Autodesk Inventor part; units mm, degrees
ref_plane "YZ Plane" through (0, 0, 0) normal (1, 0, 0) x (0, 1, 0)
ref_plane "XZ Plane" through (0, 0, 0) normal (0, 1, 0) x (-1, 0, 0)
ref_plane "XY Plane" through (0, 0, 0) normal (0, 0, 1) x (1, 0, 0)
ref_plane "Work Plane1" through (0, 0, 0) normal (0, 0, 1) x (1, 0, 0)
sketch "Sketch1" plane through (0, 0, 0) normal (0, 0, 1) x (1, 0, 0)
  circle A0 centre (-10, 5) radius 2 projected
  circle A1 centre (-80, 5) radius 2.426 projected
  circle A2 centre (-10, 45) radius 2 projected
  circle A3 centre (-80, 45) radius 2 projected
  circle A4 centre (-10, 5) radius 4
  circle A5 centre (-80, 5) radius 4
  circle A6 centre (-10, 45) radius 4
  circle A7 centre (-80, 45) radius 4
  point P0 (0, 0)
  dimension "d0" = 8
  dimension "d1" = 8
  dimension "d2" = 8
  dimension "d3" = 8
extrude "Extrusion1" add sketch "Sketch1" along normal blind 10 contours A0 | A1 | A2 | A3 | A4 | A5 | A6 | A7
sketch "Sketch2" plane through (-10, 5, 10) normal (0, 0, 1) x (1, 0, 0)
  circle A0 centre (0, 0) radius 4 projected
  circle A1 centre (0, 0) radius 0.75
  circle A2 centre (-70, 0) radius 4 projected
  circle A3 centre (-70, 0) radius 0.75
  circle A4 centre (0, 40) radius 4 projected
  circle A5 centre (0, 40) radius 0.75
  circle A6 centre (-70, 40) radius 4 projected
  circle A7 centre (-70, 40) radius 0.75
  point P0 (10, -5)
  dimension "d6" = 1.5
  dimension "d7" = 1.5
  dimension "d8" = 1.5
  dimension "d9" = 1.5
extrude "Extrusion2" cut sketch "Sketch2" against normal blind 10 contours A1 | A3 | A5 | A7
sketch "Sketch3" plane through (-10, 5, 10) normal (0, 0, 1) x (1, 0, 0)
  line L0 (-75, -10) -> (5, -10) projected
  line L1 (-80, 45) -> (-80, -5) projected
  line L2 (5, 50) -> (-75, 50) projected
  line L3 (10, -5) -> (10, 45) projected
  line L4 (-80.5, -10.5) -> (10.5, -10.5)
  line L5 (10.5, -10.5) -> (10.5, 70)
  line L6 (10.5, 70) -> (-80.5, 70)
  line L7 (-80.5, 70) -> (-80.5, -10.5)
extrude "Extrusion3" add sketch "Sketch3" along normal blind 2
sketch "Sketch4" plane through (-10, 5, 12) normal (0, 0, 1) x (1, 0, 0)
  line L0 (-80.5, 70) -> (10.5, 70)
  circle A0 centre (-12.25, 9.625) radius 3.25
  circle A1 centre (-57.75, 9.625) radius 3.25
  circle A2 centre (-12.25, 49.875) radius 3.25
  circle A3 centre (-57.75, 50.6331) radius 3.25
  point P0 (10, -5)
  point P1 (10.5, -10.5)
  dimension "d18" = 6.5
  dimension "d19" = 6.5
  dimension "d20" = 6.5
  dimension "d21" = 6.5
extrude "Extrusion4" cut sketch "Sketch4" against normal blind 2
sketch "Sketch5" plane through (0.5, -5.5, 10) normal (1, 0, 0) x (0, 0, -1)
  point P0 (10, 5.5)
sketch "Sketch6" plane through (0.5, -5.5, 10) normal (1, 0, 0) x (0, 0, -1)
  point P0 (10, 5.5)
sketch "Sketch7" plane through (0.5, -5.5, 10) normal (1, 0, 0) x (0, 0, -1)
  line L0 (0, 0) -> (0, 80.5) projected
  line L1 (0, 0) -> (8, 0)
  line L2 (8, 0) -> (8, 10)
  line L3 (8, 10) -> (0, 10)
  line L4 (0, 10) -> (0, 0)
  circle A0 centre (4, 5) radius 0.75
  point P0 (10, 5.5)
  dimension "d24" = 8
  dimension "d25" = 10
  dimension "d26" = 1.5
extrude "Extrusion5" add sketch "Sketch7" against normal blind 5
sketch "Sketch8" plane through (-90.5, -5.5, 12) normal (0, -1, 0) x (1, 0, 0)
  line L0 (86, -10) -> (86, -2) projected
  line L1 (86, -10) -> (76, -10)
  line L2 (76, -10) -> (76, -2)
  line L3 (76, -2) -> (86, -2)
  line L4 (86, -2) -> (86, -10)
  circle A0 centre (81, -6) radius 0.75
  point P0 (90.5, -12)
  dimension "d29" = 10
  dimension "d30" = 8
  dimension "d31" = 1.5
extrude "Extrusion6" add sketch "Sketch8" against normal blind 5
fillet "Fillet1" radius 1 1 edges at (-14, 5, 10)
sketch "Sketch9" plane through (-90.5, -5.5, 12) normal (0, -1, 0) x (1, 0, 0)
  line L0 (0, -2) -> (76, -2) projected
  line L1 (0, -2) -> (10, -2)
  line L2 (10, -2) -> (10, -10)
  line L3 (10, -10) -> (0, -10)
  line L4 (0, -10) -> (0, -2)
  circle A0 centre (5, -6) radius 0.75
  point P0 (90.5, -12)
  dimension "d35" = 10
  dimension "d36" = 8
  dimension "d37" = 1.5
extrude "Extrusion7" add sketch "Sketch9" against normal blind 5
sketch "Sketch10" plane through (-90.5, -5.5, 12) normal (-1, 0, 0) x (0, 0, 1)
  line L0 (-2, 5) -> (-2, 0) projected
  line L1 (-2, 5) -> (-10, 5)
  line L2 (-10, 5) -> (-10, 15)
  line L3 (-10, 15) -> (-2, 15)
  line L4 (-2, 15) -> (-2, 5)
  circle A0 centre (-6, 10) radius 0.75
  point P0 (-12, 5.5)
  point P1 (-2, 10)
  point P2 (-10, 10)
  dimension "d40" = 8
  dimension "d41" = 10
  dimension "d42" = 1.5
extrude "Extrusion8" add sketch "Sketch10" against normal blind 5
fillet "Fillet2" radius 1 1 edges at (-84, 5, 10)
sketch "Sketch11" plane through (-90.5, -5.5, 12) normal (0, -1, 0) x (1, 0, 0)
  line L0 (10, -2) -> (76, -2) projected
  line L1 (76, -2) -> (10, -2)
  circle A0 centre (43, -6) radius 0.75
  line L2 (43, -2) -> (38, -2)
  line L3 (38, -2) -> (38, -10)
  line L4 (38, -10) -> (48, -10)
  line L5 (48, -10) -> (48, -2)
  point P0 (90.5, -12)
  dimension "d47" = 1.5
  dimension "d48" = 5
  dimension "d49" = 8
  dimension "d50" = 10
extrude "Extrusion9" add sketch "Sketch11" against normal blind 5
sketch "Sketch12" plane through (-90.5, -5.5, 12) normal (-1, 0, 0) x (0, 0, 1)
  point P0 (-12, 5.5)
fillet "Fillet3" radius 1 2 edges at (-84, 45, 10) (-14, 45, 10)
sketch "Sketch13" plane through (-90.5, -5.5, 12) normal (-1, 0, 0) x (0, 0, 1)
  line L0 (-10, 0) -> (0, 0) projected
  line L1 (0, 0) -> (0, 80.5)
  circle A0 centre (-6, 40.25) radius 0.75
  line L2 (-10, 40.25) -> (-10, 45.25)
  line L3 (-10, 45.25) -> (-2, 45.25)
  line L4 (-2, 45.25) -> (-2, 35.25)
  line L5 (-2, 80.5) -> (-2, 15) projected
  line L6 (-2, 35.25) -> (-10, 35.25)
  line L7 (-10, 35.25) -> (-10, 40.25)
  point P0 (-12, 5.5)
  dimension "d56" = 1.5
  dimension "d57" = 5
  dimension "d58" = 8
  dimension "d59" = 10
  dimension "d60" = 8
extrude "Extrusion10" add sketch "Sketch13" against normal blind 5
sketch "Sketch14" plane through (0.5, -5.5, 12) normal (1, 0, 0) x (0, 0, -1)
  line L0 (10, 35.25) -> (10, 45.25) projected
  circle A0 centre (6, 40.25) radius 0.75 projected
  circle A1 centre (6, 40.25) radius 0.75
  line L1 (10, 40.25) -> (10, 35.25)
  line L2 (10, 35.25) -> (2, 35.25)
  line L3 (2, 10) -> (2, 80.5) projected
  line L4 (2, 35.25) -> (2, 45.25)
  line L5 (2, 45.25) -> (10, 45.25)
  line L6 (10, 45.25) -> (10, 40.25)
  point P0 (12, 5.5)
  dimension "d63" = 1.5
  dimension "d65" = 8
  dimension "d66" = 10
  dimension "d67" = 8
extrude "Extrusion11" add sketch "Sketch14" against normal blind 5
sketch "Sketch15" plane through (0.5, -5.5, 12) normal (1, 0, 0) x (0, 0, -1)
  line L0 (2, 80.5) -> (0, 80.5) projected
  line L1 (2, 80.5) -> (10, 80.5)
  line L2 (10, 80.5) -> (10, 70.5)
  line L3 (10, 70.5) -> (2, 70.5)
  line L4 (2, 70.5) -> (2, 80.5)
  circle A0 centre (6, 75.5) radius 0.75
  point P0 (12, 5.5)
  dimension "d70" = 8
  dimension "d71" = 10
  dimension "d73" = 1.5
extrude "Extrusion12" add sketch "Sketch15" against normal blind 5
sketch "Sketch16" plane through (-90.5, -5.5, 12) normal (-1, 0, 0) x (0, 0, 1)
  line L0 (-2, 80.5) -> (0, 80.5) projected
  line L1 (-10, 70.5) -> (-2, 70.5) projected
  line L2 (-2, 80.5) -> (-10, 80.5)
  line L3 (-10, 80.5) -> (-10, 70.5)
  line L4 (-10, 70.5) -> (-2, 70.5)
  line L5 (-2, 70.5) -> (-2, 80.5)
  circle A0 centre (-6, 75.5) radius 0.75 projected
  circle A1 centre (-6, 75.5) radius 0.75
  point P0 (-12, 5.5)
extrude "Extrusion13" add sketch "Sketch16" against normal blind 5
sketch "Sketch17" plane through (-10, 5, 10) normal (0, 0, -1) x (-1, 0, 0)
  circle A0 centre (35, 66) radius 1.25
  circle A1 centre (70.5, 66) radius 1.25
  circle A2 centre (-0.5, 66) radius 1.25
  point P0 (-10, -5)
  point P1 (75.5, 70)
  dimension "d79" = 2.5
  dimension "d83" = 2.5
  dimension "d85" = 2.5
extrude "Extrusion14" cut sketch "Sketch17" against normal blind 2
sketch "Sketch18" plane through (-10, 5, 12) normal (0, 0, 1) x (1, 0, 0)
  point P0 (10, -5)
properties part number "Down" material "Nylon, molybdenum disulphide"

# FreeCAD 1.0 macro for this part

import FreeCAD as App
import Part
import Sketcher


def edges_at(feature, points):
    """Names of the edges that pass closest to the given points."""
    edges = feature.Shape.Edges
    near = lambda p: min(range(len(edges)), key=lambda i: edges[i].distToShape(Part.Vertex(*p))[0])
    return sorted({f"Edge{near(p) + 1}" for p in points})


def add_polygon(sketch, points):
    """Adds a closed chain of lines whose ends are joined by coincident constraints."""
    first, n = sketch.GeometryCount, len(points)
    for a, b in zip(points, points[1:] + points[:1]):
        sketch.addGeometry(Part.LineSegment(App.Vector(*a, 0), App.Vector(*b, 0)), False)
    for i in range(n):
        sketch.addConstraint(Sketcher.Constraint("Coincident", first + i, 2, first + (i + 1) % n, 1))

doc = App.newDocument("Part")
body = doc.addObject("PartDesign::Body", "Body")
body.AllowCompound = True

sketch1 = body.newObject("Sketcher::SketchObject", "Sketch")
sketch1.AttachmentSupport = (doc.getObject("XY_Plane"), [""])
sketch1.MapMode = "FlatFace"
sketch1.addGeometry(Part.Circle(App.Vector(-10, 5, 0), App.Vector(0, 0, 1), 4), False)
sketch1.addGeometry(Part.Circle(App.Vector(-80, 5, 0), App.Vector(0, 0, 1), 4), False)
sketch1.addGeometry(Part.Circle(App.Vector(-10, 45, 0), App.Vector(0, 0, 1), 4), False)
sketch1.addGeometry(Part.Circle(App.Vector(-80, 45, 0), App.Vector(0, 0, 1), 4), False)
sketch1.addConstraint(Sketcher.Constraint("Equal", 0, 1))
sketch1.addConstraint(Sketcher.Constraint("Equal", 1, 2))
sketch1.addConstraint(Sketcher.Constraint("Equal", 2, 3))
sketch1.addConstraint(Sketcher.Constraint("Horizontal", 0, 3, 1, 3))
sketch1.addConstraint(Sketcher.Constraint("Horizontal", 2, 3, 3, 3))
sketch1.addConstraint(Sketcher.Constraint("Vertical", 0, 3, 2, 3))
sketch1.addConstraint(Sketcher.Constraint("Vertical", 1, 3, 3, 3))
sketch1.addConstraint(Sketcher.Constraint("Diameter", 0, 8.0))
sketch1.addConstraint(Sketcher.Constraint("DistanceX", 0, 3, -1, 1, 10.0))
sketch1.addConstraint(Sketcher.Constraint("DistanceY", -1, 1, 0, 3, 5.0))
sketch1.addConstraint(Sketcher.Constraint("DistanceX", 1, 3, -1, 1, 80.0))
sketch1.addConstraint(Sketcher.Constraint("DistanceY", -1, 1, 2, 3, 45.0))
pad1 = body.newObject("PartDesign::Pad", "Pad")
pad1.Profile = sketch1
pad1.Length = 10

sketch2 = body.newObject("Sketcher::SketchObject", "Sketch001")
sketch2.AttachmentSupport = (doc.getObject("XY_Plane"), [""])
sketch2.MapMode = "FlatFace"
sketch2.AttachmentOffset = App.Placement(App.Vector(0, 0, 10), App.Rotation())
sketch2.addGeometry(Part.Circle(App.Vector(-10, 5, 0), App.Vector(0, 0, 1), 0.75), False)
sketch2.addGeometry(Part.Circle(App.Vector(-80, 5, 0), App.Vector(0, 0, 1), 0.75), False)
sketch2.addGeometry(Part.Circle(App.Vector(-10, 45, 0), App.Vector(0, 0, 1), 0.75), False)
sketch2.addGeometry(Part.Circle(App.Vector(-80, 45, 0), App.Vector(0, 0, 1), 0.75), False)
sketch2.addConstraint(Sketcher.Constraint("Equal", 0, 1))
sketch2.addConstraint(Sketcher.Constraint("Equal", 1, 2))
sketch2.addConstraint(Sketcher.Constraint("Equal", 2, 3))
sketch2.addConstraint(Sketcher.Constraint("Horizontal", 0, 3, 1, 3))
sketch2.addConstraint(Sketcher.Constraint("Horizontal", 2, 3, 3, 3))
sketch2.addConstraint(Sketcher.Constraint("Vertical", 0, 3, 2, 3))
sketch2.addConstraint(Sketcher.Constraint("Vertical", 1, 3, 3, 3))
sketch2.addConstraint(Sketcher.Constraint("Diameter", 0, 1.5))
sketch2.addConstraint(Sketcher.Constraint("DistanceX", 0, 3, -1, 1, 10.0))
sketch2.addConstraint(Sketcher.Constraint("DistanceY", -1, 1, 0, 3, 5.0))
sketch2.addConstraint(Sketcher.Constraint("DistanceX", 1, 3, -1, 1, 80.0))
sketch2.addConstraint(Sketcher.Constraint("DistanceY", -1, 1, 2, 3, 45.0))
pocket1 = body.newObject("PartDesign::Pocket", "Pocket")
pocket1.Profile = sketch2
pocket1.Length = 10

sketch3 = body.newObject("Sketcher::SketchObject", "Sketch002")
sketch3.AttachmentSupport = (doc.getObject("XY_Plane"), [""])
sketch3.MapMode = "FlatFace"
sketch3.AttachmentOffset = App.Placement(App.Vector(0, 0, 10), App.Rotation())
add_polygon(sketch3, [(-90.5, 75), (-90.5, -5.5), (0.5, -5.5), (0.5, 75)])
sketch3.addConstraint(Sketcher.Constraint("Vertical", 0))
sketch3.addConstraint(Sketcher.Constraint("Horizontal", 1))
sketch3.addConstraint(Sketcher.Constraint("Vertical", 2))
sketch3.addConstraint(Sketcher.Constraint("Horizontal", 3))
sketch3.addConstraint(Sketcher.Constraint("DistanceX", 1, 1, 1, 2, 91.0))
sketch3.addConstraint(Sketcher.Constraint("DistanceY", 0, 2, 0, 1, 80.5))
sketch3.addConstraint(Sketcher.Constraint("DistanceY", -1, 1, 2, 2, 75.0))
sketch3.addConstraint(Sketcher.Constraint("DistanceX", 0, 2, -1, 1, 90.5))
pad2 = body.newObject("PartDesign::Pad", "Pad001")
pad2.Profile = sketch3
pad2.Length = 2

sketch4 = body.newObject("Sketcher::SketchObject", "Sketch003")
sketch4.AttachmentSupport = (doc.getObject("XY_Plane"), [""])
sketch4.MapMode = "FlatFace"
sketch4.AttachmentOffset = App.Placement(App.Vector(0, 0, 12), App.Rotation())
sketch4.addGeometry(Part.Circle(App.Vector(-22.25, 14.625, 0), App.Vector(0, 0, 1), 3.25), False)
sketch4.addGeometry(Part.Circle(App.Vector(-67.75, 14.625, 0), App.Vector(0, 0, 1), 3.25), False)
sketch4.addGeometry(Part.Circle(App.Vector(-22.25, 54.875, 0), App.Vector(0, 0, 1), 3.25), False)
sketch4.addGeometry(Part.Circle(App.Vector(-67.75, 55.6331, 0), App.Vector(0, 0, 1), 3.25), False)
sketch4.addConstraint(Sketcher.Constraint("Equal", 0, 1))
sketch4.addConstraint(Sketcher.Constraint("Equal", 1, 2))
sketch4.addConstraint(Sketcher.Constraint("Equal", 2, 3))
sketch4.addConstraint(Sketcher.Constraint("Horizontal", 0, 3, 1, 3))
sketch4.addConstraint(Sketcher.Constraint("Vertical", 0, 3, 2, 3))
sketch4.addConstraint(Sketcher.Constraint("Vertical", 1, 3, 3, 3))
sketch4.addConstraint(Sketcher.Constraint("Diameter", 0, 6.5))
sketch4.addConstraint(Sketcher.Constraint("DistanceX", 1, 3, 0, 3, 45.5))
sketch4.addConstraint(Sketcher.Constraint("DistanceX", 0, 3, -1, 1, 22.25))
sketch4.addConstraint(Sketcher.Constraint("DistanceY", 0, 3, 2, 3, 40.25))
sketch4.addConstraint(Sketcher.Constraint("DistanceY", -1, 1, 0, 3, 14.625))
sketch4.addConstraint(Sketcher.Constraint("DistanceY", -1, 1, 3, 3, 55.633))
pocket2 = body.newObject("PartDesign::Pocket", "Pocket001")
pocket2.Profile = sketch4
pocket2.Length = 2

sketch5 = body.newObject("Sketcher::SketchObject", "Sketch004")
sketch5.AttachmentSupport = (doc.getObject("YZ_Plane"), [""])
sketch5.MapMode = "FlatFace"
sketch5.AttachmentOffset = App.Placement(App.Vector(0, 0, 0.5), App.Rotation())
add_polygon(sketch5, [(4.5, 10), (-5.5, 10), (-5.5, 2), (4.5, 2)])
sketch5.addGeometry(Part.Circle(App.Vector(-0.5, 6, 0), App.Vector(0, 0, 1), 0.75), False)
sketch5.addConstraint(Sketcher.Constraint("Horizontal", 0))
sketch5.addConstraint(Sketcher.Constraint("Vertical", 1))
sketch5.addConstraint(Sketcher.Constraint("Horizontal", 2))
sketch5.addConstraint(Sketcher.Constraint("Vertical", 3))
sketch5.addConstraint(Sketcher.Constraint("Diameter", 4, 1.5))
sketch5.addConstraint(Sketcher.Constraint("DistanceX", 0, 2, 0, 1, 10.0))
sketch5.addConstraint(Sketcher.Constraint("DistanceY", 1, 2, 1, 1, 8.0))
sketch5.addConstraint(Sketcher.Constraint("DistanceY", -1, 1, 0, 2, 10.0))
sketch5.addConstraint(Sketcher.Constraint("DistanceY", -1, 1, 4, 3, 6.0))
sketch5.addConstraint(Sketcher.Constraint("DistanceX", 0, 2, 4, 3, 5.0))
sketch5.addConstraint(Sketcher.Constraint("DistanceX", 4, 3, -1, 1, 0.5))
pad3 = body.newObject("PartDesign::Pad", "Pad002")
pad3.Profile = sketch5
pad3.Length = 5
pad3.Reversed = True

sketch6 = body.newObject("Sketcher::SketchObject", "Sketch005")
sketch6.AttachmentSupport = (doc.getObject("XZ_Plane"), [""])
sketch6.MapMode = "FlatFace"
sketch6.AttachmentOffset = App.Placement(App.Vector(0, 0, 5.5), App.Rotation())
add_polygon(sketch6, [(-14.5, 2), (-4.5, 2), (-4.5, 10), (-14.5, 10)])
sketch6.addGeometry(Part.Circle(App.Vector(-9.5, 6, 0), App.Vector(0, 0, 1), 0.75), False)
sketch6.addConstraint(Sketcher.Constraint("Horizontal", 0))
sketch6.addConstraint(Sketcher.Constraint("Vertical", 1))
sketch6.addConstraint(Sketcher.Constraint("Horizontal", 2))
sketch6.addConstraint(Sketcher.Constraint("Vertical", 3))
sketch6.addConstraint(Sketcher.Constraint("Diameter", 4, 1.5))
sketch6.addConstraint(Sketcher.Constraint("DistanceX", 0, 1, 0, 2, 10.0))
sketch6.addConstraint(Sketcher.Constraint("DistanceY", 1, 1, 1, 2, 8.0))
sketch6.addConstraint(Sketcher.Constraint("DistanceY", -1, 1, 1, 2, 10.0))
sketch6.addConstraint(Sketcher.Constraint("DistanceY", -1, 1, 4, 3, 6.0))
sketch6.addConstraint(Sketcher.Constraint("DistanceX", 4, 3, 0, 2, 5.0))
sketch6.addConstraint(Sketcher.Constraint("DistanceX", 4, 3, -1, 1, 9.5))
pad4 = body.newObject("PartDesign::Pad", "Pad003")
pad4.Profile = sketch6
pad4.Length = 5
pad4.Reversed = True
doc.recompute()

fillet = body.newObject("PartDesign::Fillet", "Fillet")
fillet.Base = (pad4, edges_at(pad4, [(-14, 5, 10)]))
fillet.Radius = 1

sketch7 = body.newObject("Sketcher::SketchObject", "Sketch006")
sketch7.AttachmentSupport = (doc.getObject("XZ_Plane"), [""])
sketch7.MapMode = "FlatFace"
sketch7.AttachmentOffset = App.Placement(App.Vector(0, 0, 5.5), App.Rotation())
add_polygon(sketch7, [(-80.5, 10), (-90.5, 10), (-90.5, 2), (-80.5, 2)])
sketch7.addGeometry(Part.Circle(App.Vector(-85.5, 6, 0), App.Vector(0, 0, 1), 0.75), False)
sketch7.addConstraint(Sketcher.Constraint("Horizontal", 0))
sketch7.addConstraint(Sketcher.Constraint("Vertical", 1))
sketch7.addConstraint(Sketcher.Constraint("Horizontal", 2))
sketch7.addConstraint(Sketcher.Constraint("Vertical", 3))
sketch7.addConstraint(Sketcher.Constraint("Diameter", 4, 1.5))
sketch7.addConstraint(Sketcher.Constraint("DistanceX", 0, 2, 0, 1, 10.0))
sketch7.addConstraint(Sketcher.Constraint("DistanceY", 1, 2, 1, 1, 8.0))
sketch7.addConstraint(Sketcher.Constraint("DistanceY", -1, 1, 0, 2, 10.0))
sketch7.addConstraint(Sketcher.Constraint("DistanceY", -1, 1, 4, 3, 6.0))
sketch7.addConstraint(Sketcher.Constraint("DistanceX", 0, 2, 4, 3, 5.0))
sketch7.addConstraint(Sketcher.Constraint("DistanceX", 4, 3, -1, 1, 85.5))
pad5 = body.newObject("PartDesign::Pad", "Pad004")
pad5.Profile = sketch7
pad5.Length = 5
pad5.Reversed = True

sketch8 = body.newObject("Sketcher::SketchObject", "Sketch007")
sketch8.AttachmentSupport = (doc.getObject("YZ_Plane"), [""])
sketch8.MapMode = "FlatFace"
sketch8.AttachmentOffset = App.Placement(App.Vector(0, 0, -90.5), App.Rotation())
add_polygon(sketch8, [(-0.5, 2), (-0.5, 10), (9.5, 10), (9.5, 2)])
sketch8.addGeometry(Part.Circle(App.Vector(4.5, 6, 0), App.Vector(0, 0, 1), 0.75), False)
sketch8.addConstraint(Sketcher.Constraint("Vertical", 0))
sketch8.addConstraint(Sketcher.Constraint("Horizontal", 1))
sketch8.addConstraint(Sketcher.Constraint("Vertical", 2))
sketch8.addConstraint(Sketcher.Constraint("Horizontal", 3))
sketch8.addConstraint(Sketcher.Constraint("Diameter", 4, 1.5))
sketch8.addConstraint(Sketcher.Constraint("DistanceX", 1, 1, 1, 2, 10.0))
sketch8.addConstraint(Sketcher.Constraint("DistanceY", 0, 1, 0, 2, 8.0))
sketch8.addConstraint(Sketcher.Constraint("DistanceY", -1, 1, 0, 2, 10.0))
sketch8.addConstraint(Sketcher.Constraint("DistanceY", -1, 1, 4, 3, 6.0))
sketch8.addConstraint(Sketcher.Constraint("DistanceX", 0, 2, 4, 3, 5.0))
sketch8.addConstraint(Sketcher.Constraint("DistanceX", -1, 1, 4, 3, 4.5))
pad6 = body.newObject("PartDesign::Pad", "Pad005")
pad6.Profile = sketch8
pad6.Length = 5
doc.recompute()

fillet2 = body.newObject("PartDesign::Fillet", "Fillet001")
fillet2.Base = (pad6, edges_at(pad6, [(-84, 5, 10)]))
fillet2.Radius = 1

sketch9 = body.newObject("Sketcher::SketchObject", "Sketch008")
sketch9.AttachmentSupport = (doc.getObject("XZ_Plane"), [""])
sketch9.MapMode = "FlatFace"
sketch9.AttachmentOffset = App.Placement(App.Vector(0, 0, 5.5), App.Rotation())
add_polygon(sketch9, [(-42.5, 10), (-52.5, 10), (-52.5, 2), (-42.5, 2)])
sketch9.addGeometry(Part.Circle(App.Vector(-47.5, 6, 0), App.Vector(0, 0, 1), 0.75), False)
sketch9.addConstraint(Sketcher.Constraint("Horizontal", 0))
sketch9.addConstraint(Sketcher.Constraint("Vertical", 1))
sketch9.addConstraint(Sketcher.Constraint("Horizontal", 2))
sketch9.addConstraint(Sketcher.Constraint("Vertical", 3))
sketch9.addConstraint(Sketcher.Constraint("Diameter", 4, 1.5))
sketch9.addConstraint(Sketcher.Constraint("DistanceX", 0, 2, 0, 1, 10.0))
sketch9.addConstraint(Sketcher.Constraint("DistanceY", 1, 2, 1, 1, 8.0))
sketch9.addConstraint(Sketcher.Constraint("DistanceY", -1, 1, 0, 2, 10.0))
sketch9.addConstraint(Sketcher.Constraint("DistanceX", 0, 2, 4, 3, 5.0))
sketch9.addConstraint(Sketcher.Constraint("DistanceY", -1, 1, 4, 3, 6.0))
sketch9.addConstraint(Sketcher.Constraint("DistanceX", 4, 3, -1, 1, 47.5))
pad7 = body.newObject("PartDesign::Pad", "Pad006")
pad7.Profile = sketch9
pad7.Length = 5
pad7.Reversed = True
doc.recompute()

fillet3 = body.newObject("PartDesign::Fillet", "Fillet002")
fillet3.Base = (pad7, edges_at(pad7, [(-84, 45, 10), (-14, 45, 10)]))
fillet3.Radius = 1

sketch10 = body.newObject("Sketcher::SketchObject", "Sketch009")
sketch10.AttachmentSupport = (doc.getObject("YZ_Plane"), [""])
sketch10.MapMode = "FlatFace"
sketch10.AttachmentOffset = App.Placement(App.Vector(0, 0, -90.5), App.Rotation())
add_polygon(sketch10, [(39.75, 2), (29.75, 2), (29.75, 10), (39.75, 10)])
sketch10.addGeometry(Part.Circle(App.Vector(34.75, 6, 0), App.Vector(0, 0, 1), 0.75), False)
sketch10.addConstraint(Sketcher.Constraint("Horizontal", 0))
sketch10.addConstraint(Sketcher.Constraint("Vertical", 1))
sketch10.addConstraint(Sketcher.Constraint("Horizontal", 2))
sketch10.addConstraint(Sketcher.Constraint("Vertical", 3))
sketch10.addConstraint(Sketcher.Constraint("Diameter", 4, 1.5))
sketch10.addConstraint(Sketcher.Constraint("DistanceX", 0, 2, 0, 1, 10.0))
sketch10.addConstraint(Sketcher.Constraint("DistanceY", 1, 1, 1, 2, 8.0))
sketch10.addConstraint(Sketcher.Constraint("DistanceY", -1, 1, 1, 2, 10.0))
sketch10.addConstraint(Sketcher.Constraint("DistanceX", 0, 2, 4, 3, 5.0))
sketch10.addConstraint(Sketcher.Constraint("DistanceY", -1, 1, 4, 3, 6.0))
sketch10.addConstraint(Sketcher.Constraint("DistanceX", -1, 1, 4, 3, 34.75))
pad8 = body.newObject("PartDesign::Pad", "Pad007")
pad8.Profile = sketch10
pad8.Length = 5

sketch11 = body.newObject("Sketcher::SketchObject", "Sketch010")
sketch11.AttachmentSupport = (doc.getObject("YZ_Plane"), [""])
sketch11.MapMode = "FlatFace"
sketch11.AttachmentOffset = App.Placement(App.Vector(0, 0, 0.5), App.Rotation())
add_polygon(sketch11, [(29.75, 10), (29.75, 2), (39.75, 2), (39.75, 10)])
sketch11.addGeometry(Part.Circle(App.Vector(34.75, 6, 0), App.Vector(0, 0, 1), 0.75), False)
sketch11.addConstraint(Sketcher.Constraint("Vertical", 0))
sketch11.addConstraint(Sketcher.Constraint("Horizontal", 1))
sketch11.addConstraint(Sketcher.Constraint("Vertical", 2))
sketch11.addConstraint(Sketcher.Constraint("Horizontal", 3))
sketch11.addConstraint(Sketcher.Constraint("Diameter", 4, 1.5))
sketch11.addConstraint(Sketcher.Constraint("DistanceX", 1, 1, 1, 2, 10.0))
sketch11.addConstraint(Sketcher.Constraint("DistanceY", 0, 2, 0, 1, 8.0))
sketch11.addConstraint(Sketcher.Constraint("DistanceY", -1, 1, 2, 2, 10.0))
sketch11.addConstraint(Sketcher.Constraint("DistanceY", -1, 1, 4, 3, 6.0))
sketch11.addConstraint(Sketcher.Constraint("DistanceX", 0, 2, 4, 3, 5.0))
sketch11.addConstraint(Sketcher.Constraint("DistanceX", -1, 1, 4, 3, 34.75))
pad9 = body.newObject("PartDesign::Pad", "Pad008")
pad9.Profile = sketch11
pad9.Length = 5
pad9.Reversed = True

sketch12 = body.newObject("Sketcher::SketchObject", "Sketch011")
sketch12.AttachmentSupport = (doc.getObject("YZ_Plane"), [""])
sketch12.MapMode = "FlatFace"
sketch12.AttachmentOffset = App.Placement(App.Vector(0, 0, 0.5), App.Rotation())
add_polygon(sketch12, [(75, 2), (75, 10), (65, 10), (65, 2)])
sketch12.addGeometry(Part.Circle(App.Vector(70, 6, 0), App.Vector(0, 0, 1), 0.75), False)
sketch12.addConstraint(Sketcher.Constraint("Vertical", 0))
sketch12.addConstraint(Sketcher.Constraint("Horizontal", 1))
sketch12.addConstraint(Sketcher.Constraint("Vertical", 2))
sketch12.addConstraint(Sketcher.Constraint("Horizontal", 3))
sketch12.addConstraint(Sketcher.Constraint("Diameter", 4, 1.5))
sketch12.addConstraint(Sketcher.Constraint("DistanceX", 1, 2, 1, 1, 10.0))
sketch12.addConstraint(Sketcher.Constraint("DistanceY", 0, 1, 0, 2, 8.0))
sketch12.addConstraint(Sketcher.Constraint("DistanceY", -1, 1, 0, 2, 10.0))
sketch12.addConstraint(Sketcher.Constraint("DistanceX", -1, 1, 4, 3, 70.0))
sketch12.addConstraint(Sketcher.Constraint("DistanceY", -1, 1, 4, 3, 6.0))
sketch12.addConstraint(Sketcher.Constraint("DistanceX", -1, 1, 0, 2, 75.0))
pad10 = body.newObject("PartDesign::Pad", "Pad009")
pad10.Profile = sketch12
pad10.Length = 5
pad10.Reversed = True

sketch13 = body.newObject("Sketcher::SketchObject", "Sketch012")
sketch13.AttachmentSupport = (doc.getObject("YZ_Plane"), [""])
sketch13.MapMode = "FlatFace"
sketch13.AttachmentOffset = App.Placement(App.Vector(0, 0, -90.5), App.Rotation())
add_polygon(sketch13, [(75, 2), (65, 2), (65, 10), (75, 10)])
sketch13.addGeometry(Part.Circle(App.Vector(70, 6, 0), App.Vector(0, 0, 1), 0.75), False)
sketch13.addConstraint(Sketcher.Constraint("Horizontal", 0))
sketch13.addConstraint(Sketcher.Constraint("Vertical", 1))
sketch13.addConstraint(Sketcher.Constraint("Horizontal", 2))
sketch13.addConstraint(Sketcher.Constraint("Vertical", 3))
sketch13.addConstraint(Sketcher.Constraint("Diameter", 4, 1.5))
sketch13.addConstraint(Sketcher.Constraint("DistanceX", 0, 2, 0, 1, 10.0))
sketch13.addConstraint(Sketcher.Constraint("DistanceY", 1, 1, 1, 2, 8.0))
sketch13.addConstraint(Sketcher.Constraint("DistanceX", -1, 1, 4, 3, 70.0))
sketch13.addConstraint(Sketcher.Constraint("DistanceY", -1, 1, 4, 3, 6.0))
sketch13.addConstraint(Sketcher.Constraint("DistanceX", -1, 1, 0, 2, 65.0))
sketch13.addConstraint(Sketcher.Constraint("DistanceY", -1, 1, 0, 2, 2.0))
pad11 = body.newObject("PartDesign::Pad", "Pad010")
pad11.Profile = sketch13
pad11.Length = 5

sketch14 = body.newObject("Sketcher::SketchObject", "Sketch013")
sketch14.AttachmentSupport = (doc.getObject("XY_Plane"), [""])
sketch14.MapMode = "FlatFace"
sketch14.AttachmentOffset = App.Placement(App.Vector(0, 0, 10), App.Rotation())
sketch14.addGeometry(Part.Circle(App.Vector(-45, 71, 0), App.Vector(0, 0, 1), 1.25), False)
sketch14.addGeometry(Part.Circle(App.Vector(-80.5, 71, 0), App.Vector(0, 0, 1), 1.25), False)
sketch14.addGeometry(Part.Circle(App.Vector(-9.5, 71, 0), App.Vector(0, 0, 1), 1.25), False)
sketch14.addConstraint(Sketcher.Constraint("Equal", 0, 1))
sketch14.addConstraint(Sketcher.Constraint("Equal", 1, 2))
sketch14.addConstraint(Sketcher.Constraint("Horizontal", 0, 3, 1, 3))
sketch14.addConstraint(Sketcher.Constraint("Horizontal", 1, 3, 2, 3))
sketch14.addConstraint(Sketcher.Constraint("Diameter", 0, 2.5))
sketch14.addConstraint(Sketcher.Constraint("DistanceX", 0, 3, -1, 1, 45.0))
sketch14.addConstraint(Sketcher.Constraint("DistanceY", -1, 1, 0, 3, 71.0))
sketch14.addConstraint(Sketcher.Constraint("DistanceX", 1, 3, 2, 3, 71.0))
sketch14.addConstraint(Sketcher.Constraint("DistanceX", 1, 3, -1, 1, 80.5))
pocket3 = body.newObject("PartDesign::Pocket", "Pocket002")
pocket3.Profile = sketch14
pocket3.Length = 2
pocket3.Reversed = True

doc.recompute()
